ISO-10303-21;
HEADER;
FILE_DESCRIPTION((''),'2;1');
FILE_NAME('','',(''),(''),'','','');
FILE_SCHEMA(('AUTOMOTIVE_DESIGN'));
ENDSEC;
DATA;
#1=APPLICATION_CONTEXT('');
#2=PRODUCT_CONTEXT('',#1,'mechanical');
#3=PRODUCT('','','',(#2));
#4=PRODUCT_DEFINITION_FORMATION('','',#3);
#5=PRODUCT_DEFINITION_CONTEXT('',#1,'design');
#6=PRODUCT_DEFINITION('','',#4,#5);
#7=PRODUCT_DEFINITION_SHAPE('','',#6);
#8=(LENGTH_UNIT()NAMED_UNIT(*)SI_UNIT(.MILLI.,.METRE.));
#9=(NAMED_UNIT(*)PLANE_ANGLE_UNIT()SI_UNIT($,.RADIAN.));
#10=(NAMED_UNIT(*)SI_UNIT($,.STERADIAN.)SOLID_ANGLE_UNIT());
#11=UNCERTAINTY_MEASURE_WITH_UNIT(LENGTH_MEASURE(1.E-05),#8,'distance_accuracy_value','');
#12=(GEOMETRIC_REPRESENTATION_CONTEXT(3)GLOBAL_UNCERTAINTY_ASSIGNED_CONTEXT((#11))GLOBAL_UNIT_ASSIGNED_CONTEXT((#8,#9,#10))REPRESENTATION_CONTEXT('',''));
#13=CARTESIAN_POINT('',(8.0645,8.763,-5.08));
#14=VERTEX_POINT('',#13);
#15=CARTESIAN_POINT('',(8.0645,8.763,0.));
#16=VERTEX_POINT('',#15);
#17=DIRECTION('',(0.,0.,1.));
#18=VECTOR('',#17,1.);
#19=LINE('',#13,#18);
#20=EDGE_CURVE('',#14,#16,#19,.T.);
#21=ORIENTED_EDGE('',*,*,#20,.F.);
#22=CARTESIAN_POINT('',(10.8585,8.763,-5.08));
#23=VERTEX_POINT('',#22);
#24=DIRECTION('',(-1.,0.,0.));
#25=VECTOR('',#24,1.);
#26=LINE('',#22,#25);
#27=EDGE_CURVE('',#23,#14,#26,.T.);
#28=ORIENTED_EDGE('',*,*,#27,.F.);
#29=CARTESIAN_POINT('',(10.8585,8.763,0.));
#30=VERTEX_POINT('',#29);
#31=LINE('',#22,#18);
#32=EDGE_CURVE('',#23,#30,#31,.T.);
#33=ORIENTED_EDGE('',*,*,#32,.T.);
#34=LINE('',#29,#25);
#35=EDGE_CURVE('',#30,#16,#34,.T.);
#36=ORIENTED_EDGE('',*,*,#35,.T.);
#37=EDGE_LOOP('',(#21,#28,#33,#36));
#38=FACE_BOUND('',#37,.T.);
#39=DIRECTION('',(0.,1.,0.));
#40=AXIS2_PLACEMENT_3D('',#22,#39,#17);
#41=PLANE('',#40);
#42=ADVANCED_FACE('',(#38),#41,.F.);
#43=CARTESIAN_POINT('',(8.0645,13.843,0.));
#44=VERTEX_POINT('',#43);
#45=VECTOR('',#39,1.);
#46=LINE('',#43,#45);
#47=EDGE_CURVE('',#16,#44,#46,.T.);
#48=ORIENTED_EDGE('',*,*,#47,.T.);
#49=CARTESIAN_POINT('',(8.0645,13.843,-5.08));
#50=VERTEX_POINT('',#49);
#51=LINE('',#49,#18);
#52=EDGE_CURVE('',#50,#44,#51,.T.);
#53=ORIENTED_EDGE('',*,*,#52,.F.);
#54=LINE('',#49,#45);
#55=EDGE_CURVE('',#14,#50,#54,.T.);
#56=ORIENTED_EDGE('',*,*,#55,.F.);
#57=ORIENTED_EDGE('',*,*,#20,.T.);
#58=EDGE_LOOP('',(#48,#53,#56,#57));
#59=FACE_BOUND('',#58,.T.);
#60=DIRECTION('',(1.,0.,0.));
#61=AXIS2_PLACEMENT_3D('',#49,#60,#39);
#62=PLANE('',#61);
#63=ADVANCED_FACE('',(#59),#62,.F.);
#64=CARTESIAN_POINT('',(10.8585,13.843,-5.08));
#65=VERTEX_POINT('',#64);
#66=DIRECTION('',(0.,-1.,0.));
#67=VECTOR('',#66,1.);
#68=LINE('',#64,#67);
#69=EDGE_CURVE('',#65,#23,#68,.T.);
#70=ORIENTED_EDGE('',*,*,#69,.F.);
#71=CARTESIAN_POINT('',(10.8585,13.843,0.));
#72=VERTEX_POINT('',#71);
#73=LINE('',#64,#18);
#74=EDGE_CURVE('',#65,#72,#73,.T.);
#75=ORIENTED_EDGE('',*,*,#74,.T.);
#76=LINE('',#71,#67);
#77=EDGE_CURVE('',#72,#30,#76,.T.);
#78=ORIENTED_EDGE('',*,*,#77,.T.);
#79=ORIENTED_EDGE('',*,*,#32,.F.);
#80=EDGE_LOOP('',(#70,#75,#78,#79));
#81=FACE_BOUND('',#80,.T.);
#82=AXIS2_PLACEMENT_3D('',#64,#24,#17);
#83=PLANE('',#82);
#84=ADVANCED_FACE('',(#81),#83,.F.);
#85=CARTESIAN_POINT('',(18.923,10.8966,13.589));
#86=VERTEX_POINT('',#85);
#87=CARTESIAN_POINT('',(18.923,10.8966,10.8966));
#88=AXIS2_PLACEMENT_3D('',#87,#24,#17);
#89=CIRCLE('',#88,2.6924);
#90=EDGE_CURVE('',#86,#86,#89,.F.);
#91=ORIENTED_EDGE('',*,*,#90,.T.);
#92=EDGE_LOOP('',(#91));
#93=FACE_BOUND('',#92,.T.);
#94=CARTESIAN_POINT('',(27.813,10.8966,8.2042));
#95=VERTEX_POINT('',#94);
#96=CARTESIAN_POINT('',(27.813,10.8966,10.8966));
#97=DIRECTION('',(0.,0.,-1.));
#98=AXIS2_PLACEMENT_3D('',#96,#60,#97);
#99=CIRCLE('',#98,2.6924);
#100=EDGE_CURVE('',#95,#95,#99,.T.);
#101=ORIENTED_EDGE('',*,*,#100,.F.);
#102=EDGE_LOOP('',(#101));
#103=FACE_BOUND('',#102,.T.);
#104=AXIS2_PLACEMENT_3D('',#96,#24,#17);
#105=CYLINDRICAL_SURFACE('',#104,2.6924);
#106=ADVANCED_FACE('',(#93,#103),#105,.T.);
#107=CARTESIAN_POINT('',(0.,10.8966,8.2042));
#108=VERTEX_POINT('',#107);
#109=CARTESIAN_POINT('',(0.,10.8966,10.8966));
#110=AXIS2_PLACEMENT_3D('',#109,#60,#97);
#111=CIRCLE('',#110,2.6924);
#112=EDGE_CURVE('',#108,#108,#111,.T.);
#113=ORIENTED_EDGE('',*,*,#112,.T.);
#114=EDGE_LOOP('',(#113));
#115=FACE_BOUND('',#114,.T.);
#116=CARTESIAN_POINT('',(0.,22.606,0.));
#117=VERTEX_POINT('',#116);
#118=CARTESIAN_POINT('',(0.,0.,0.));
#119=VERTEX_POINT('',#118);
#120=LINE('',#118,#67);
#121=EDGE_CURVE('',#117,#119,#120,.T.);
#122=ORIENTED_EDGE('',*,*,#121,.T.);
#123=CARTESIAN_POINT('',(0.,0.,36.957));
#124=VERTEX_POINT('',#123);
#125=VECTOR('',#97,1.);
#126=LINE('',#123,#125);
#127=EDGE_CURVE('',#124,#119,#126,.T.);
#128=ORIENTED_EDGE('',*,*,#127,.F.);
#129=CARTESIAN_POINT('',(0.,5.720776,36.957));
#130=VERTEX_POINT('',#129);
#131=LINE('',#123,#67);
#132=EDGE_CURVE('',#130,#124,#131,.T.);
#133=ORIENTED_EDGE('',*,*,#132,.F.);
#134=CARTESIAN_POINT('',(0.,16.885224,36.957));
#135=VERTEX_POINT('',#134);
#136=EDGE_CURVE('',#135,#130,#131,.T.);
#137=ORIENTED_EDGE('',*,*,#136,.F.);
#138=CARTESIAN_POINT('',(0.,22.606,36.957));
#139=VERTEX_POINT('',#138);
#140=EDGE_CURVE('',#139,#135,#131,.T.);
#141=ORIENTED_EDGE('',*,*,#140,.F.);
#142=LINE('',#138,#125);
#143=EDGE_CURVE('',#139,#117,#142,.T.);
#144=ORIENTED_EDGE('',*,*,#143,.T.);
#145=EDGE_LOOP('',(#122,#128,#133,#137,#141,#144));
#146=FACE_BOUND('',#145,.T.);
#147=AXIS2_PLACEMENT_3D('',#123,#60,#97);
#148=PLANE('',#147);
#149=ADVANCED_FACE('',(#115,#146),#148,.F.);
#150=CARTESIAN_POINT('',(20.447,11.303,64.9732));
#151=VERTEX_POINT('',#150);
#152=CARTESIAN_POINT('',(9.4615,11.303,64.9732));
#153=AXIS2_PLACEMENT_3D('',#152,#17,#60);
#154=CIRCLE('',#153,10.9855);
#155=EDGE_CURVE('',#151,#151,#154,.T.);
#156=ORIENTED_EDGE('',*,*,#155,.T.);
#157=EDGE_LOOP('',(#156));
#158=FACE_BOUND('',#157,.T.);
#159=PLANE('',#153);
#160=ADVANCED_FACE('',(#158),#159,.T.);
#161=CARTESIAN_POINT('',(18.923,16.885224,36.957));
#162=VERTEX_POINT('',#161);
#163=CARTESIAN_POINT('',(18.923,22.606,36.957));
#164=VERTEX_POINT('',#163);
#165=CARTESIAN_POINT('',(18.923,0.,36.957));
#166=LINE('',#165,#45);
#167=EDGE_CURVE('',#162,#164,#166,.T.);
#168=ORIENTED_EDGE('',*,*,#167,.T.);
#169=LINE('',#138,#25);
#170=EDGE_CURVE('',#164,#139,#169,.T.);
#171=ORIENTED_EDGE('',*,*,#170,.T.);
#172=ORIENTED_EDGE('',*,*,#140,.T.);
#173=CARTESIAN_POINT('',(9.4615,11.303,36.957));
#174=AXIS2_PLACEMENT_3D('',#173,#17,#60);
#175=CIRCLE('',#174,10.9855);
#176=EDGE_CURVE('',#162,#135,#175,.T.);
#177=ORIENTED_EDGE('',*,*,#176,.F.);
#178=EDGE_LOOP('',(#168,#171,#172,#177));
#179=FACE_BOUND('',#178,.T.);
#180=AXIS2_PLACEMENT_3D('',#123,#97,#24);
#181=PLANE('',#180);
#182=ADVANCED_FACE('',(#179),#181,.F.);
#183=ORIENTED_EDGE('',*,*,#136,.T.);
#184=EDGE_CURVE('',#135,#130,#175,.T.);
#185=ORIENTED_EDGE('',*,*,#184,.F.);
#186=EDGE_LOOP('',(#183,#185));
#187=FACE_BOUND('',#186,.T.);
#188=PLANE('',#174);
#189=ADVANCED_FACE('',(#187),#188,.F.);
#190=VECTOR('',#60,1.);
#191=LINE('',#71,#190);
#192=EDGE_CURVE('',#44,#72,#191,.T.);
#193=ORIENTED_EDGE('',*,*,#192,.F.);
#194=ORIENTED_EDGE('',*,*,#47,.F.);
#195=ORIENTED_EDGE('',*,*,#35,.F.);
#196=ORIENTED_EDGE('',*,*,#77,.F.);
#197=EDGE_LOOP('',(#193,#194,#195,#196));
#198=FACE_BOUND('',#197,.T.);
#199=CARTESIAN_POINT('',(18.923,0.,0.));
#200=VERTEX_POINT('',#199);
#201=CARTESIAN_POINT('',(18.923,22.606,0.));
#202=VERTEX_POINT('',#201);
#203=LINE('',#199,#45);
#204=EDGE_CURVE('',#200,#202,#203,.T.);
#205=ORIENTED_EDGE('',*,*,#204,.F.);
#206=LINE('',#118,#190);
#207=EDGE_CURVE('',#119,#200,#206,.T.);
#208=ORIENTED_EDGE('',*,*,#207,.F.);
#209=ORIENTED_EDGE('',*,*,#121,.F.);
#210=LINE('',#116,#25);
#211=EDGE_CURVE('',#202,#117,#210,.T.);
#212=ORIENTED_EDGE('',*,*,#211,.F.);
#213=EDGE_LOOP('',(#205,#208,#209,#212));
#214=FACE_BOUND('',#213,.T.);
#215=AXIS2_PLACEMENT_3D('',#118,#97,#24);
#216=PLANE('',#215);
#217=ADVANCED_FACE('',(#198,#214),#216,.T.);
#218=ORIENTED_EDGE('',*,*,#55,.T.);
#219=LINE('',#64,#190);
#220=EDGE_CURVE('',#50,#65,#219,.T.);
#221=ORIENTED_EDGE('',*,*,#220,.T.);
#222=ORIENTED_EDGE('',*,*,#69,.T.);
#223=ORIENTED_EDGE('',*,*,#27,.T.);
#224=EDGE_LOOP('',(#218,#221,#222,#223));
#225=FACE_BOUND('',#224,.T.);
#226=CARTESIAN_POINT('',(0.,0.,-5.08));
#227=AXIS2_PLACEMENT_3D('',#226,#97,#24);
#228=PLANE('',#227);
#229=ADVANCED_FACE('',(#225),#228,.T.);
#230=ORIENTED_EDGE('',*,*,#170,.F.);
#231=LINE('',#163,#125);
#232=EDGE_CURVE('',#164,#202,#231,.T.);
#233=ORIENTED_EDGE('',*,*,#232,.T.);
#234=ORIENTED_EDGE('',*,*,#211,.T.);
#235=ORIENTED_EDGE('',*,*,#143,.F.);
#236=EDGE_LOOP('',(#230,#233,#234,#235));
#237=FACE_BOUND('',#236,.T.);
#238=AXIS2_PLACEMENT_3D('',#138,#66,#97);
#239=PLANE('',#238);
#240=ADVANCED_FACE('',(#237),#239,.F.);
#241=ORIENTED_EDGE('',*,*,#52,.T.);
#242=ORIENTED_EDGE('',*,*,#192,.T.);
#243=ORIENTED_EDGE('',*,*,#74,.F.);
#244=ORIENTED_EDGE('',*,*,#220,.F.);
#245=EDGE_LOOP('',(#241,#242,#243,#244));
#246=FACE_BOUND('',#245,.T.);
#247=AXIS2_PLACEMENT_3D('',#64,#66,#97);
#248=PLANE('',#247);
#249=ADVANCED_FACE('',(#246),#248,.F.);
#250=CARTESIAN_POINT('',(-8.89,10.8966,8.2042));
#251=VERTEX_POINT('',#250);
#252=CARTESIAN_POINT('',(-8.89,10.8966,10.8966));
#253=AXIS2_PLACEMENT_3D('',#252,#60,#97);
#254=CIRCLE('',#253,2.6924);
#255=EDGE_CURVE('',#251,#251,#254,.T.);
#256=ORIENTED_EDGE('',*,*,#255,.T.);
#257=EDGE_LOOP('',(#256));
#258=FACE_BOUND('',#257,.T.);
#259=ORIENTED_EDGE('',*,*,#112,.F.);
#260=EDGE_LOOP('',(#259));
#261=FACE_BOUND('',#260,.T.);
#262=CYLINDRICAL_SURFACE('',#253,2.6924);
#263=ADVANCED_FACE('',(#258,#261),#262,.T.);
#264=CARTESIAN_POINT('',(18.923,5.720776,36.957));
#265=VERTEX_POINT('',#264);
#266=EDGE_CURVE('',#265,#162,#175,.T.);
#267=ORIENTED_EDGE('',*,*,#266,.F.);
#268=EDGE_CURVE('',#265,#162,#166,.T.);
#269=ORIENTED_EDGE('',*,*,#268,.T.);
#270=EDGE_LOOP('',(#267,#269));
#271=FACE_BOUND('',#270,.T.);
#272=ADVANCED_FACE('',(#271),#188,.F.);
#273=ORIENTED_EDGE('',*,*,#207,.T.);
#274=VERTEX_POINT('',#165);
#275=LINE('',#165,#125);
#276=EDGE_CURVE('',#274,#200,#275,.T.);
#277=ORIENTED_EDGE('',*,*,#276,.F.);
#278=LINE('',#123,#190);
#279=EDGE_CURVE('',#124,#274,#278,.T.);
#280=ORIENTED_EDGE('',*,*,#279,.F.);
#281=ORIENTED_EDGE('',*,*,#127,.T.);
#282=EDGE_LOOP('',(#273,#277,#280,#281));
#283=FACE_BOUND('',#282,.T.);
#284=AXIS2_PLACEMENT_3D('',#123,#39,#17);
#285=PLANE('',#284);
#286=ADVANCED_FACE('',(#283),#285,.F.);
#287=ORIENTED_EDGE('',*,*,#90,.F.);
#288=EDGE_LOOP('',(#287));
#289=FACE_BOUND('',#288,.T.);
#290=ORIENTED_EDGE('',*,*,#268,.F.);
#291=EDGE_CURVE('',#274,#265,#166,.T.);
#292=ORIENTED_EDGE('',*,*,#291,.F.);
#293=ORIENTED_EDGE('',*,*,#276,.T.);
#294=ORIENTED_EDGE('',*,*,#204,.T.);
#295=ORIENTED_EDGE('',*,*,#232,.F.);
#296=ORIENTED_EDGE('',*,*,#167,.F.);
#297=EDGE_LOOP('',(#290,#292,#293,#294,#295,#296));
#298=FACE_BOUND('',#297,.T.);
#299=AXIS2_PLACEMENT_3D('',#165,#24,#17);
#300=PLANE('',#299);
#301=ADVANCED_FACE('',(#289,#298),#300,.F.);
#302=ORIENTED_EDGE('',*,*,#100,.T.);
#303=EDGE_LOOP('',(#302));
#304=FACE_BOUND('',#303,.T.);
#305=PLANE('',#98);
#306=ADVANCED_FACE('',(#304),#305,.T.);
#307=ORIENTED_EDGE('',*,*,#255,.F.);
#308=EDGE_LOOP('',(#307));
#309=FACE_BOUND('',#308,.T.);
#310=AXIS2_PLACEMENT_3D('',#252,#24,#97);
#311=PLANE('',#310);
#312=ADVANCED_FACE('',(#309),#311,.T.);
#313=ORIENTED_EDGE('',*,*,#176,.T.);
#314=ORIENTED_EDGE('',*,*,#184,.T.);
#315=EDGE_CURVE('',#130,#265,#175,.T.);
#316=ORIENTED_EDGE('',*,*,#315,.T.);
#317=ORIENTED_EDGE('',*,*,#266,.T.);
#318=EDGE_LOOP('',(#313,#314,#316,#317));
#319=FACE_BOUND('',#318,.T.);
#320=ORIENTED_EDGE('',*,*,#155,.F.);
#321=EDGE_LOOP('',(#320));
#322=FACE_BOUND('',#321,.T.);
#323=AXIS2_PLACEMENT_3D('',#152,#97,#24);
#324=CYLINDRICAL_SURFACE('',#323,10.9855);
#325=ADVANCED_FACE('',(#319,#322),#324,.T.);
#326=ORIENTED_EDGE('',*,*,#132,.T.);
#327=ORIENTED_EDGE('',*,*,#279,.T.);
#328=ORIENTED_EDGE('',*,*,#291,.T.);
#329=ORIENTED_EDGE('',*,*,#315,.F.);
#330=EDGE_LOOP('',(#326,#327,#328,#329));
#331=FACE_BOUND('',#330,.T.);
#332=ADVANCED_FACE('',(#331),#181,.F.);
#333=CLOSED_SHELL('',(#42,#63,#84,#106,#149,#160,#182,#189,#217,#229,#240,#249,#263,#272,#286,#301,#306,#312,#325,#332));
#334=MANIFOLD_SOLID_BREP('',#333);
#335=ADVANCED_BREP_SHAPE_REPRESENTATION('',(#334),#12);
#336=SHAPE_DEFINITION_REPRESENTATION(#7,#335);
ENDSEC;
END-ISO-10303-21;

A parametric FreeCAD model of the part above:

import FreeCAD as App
import Part
import Sketcher
from FreeCAD import Vector
Q = App.Units.Quantity


def add_polygon(sketch, points):
    """Adds a closed chain of lines whose ends are joined by coincident constraints."""
    first, n = sketch.GeometryCount, len(points)
    for a, b in zip(points, points[1:] + points[:1]):
        sketch.addGeometry(Part.LineSegment(App.Vector(*a, 0), App.Vector(*b, 0)), False)
    for i in range(n):
        sketch.addConstraint(Sketcher.Constraint("Coincident", first + i, 2, first + (i + 1) % n, 1))

doc = App.newDocument("Part")
params = doc.addObject("Spreadsheet::Sheet", "Params")
for row, (alias, value) in enumerate([
    ("sketch1_height", "0.89 in"),
    ("sketch1_width", "0.745 in"),
    ("pad1_length", "1.455 in"),
    ("sketch2_diameter", "0.865 in"),
    ("pad2_length", "1.103 in"),
    ("sketch3_height", "0.2 in"),
    ("sketch3_width", "0.11 in"),
    ("pad3_length", "0.2 in"),
    ("sketch4_diameter", "0.212 in"),
    ("pad4_length", "0.35 in"),
], start=1):
    params.set(f"A{row}", alias)
    params.set(f"B{row}", "=" + value)
    params.setAlias(f"B{row}", alias)

body = doc.addObject("PartDesign::Body", "Body")

# Sketch on XY plane
sketch1 = doc.addObject("Sketcher::SketchObject", "Sketch")
body.addObject(sketch1)
sketch1.AttachmentSupport = (doc.XY_Plane, [""])
sketch1.MapMode = "FlatFace"
add_polygon(sketch1, [(0, 23), (0, 0), (19, 0), (19, 23)])  # lines 0-3
sketch1.addConstraint(Sketcher.Constraint("Vertical", 0))
sketch1.addConstraint(Sketcher.Constraint("Horizontal", 1))
sketch1.addConstraint(Sketcher.Constraint("Vertical", 2))
sketch1.addConstraint(Sketcher.Constraint("Horizontal", 3))
sketch1.addConstraint(Sketcher.Constraint("Coincident", 0, 2, -1, 1))
sketch1.addConstraint(Sketcher.Constraint("DistanceY", 0, 2, 0, 1, Q("0.89 in")))
sketch1.addConstraint(Sketcher.Constraint("DistanceX", 1, 1, 1, 2, Q("0.745 in")))
sketch1.setExpression("Constraints[9]", "Params.sketch1_height")
sketch1.setExpression("Constraints[10]", "Params.sketch1_width")
pad1 = doc.addObject("PartDesign::Pad", "Pad")
body.addObject(pad1)
pad1.Profile = sketch1
pad1.setExpression("Length", "Params.pad1_length")

# Sketch on XY plane
sketch2 = doc.addObject("Sketcher::SketchObject", "Sketch001")
body.addObject(sketch2)
sketch2.AttachmentSupport = (doc.XY_Plane, [""])
sketch2.MapMode = "FlatFace"
sketch2.AttachmentOffset = App.Placement(Vector(0, 0, 1.455 * 25.4), App.Rotation())
sketch2.addGeometry(Part.Circle(Vector(9, 11, 0), Vector(0, 0, 1), 11), False)
sketch2.addConstraint(Sketcher.Constraint("Diameter", 0, Q("0.865 in")))
sketch2.addConstraint(Sketcher.Constraint("DistanceY", -1, 1, 0, 3, Q("0.445 in")))
sketch2.addConstraint(Sketcher.Constraint("DistanceX", -1, 1, 0, 3, Q("0.3725 in")))
sketch2.setExpression("Constraints[0]", "Params.sketch2_diameter")
pad2 = doc.addObject("PartDesign::Pad", "Pad001")
body.addObject(pad2)
pad2.Profile = sketch2
pad2.setExpression("Length", "Params.pad2_length")

# Sketch on XY plane
sketch3 = doc.addObject("Sketcher::SketchObject", "Sketch002")
body.addObject(sketch3)
sketch3.AttachmentSupport = (doc.XY_Plane, [""])
sketch3.MapMode = "FlatFace"
add_polygon(sketch3, [(10.9, 13.8), (10.9, 8.8), (8.1, 8.8), (8.1, 13.8)])  # lines 0-3
sketch3.addConstraint(Sketcher.Constraint("Vertical", 0))
sketch3.addConstraint(Sketcher.Constraint("Horizontal", 1))
sketch3.addConstraint(Sketcher.Constraint("Vertical", 2))
sketch3.addConstraint(Sketcher.Constraint("Horizontal", 3))
sketch3.addConstraint(Sketcher.Constraint("DistanceY", 0, 2, 0, 1, Q("0.2 in")))
sketch3.addConstraint(Sketcher.Constraint("DistanceX", 1, 2, 1, 1, Q("0.11 in")))
sketch3.addConstraint(Sketcher.Constraint("DistanceY", -1, 1, 0, 2, Q("0.345 in")))
sketch3.addConstraint(Sketcher.Constraint("DistanceX", -1, 1, 0, 2, Q("0.4275 in")))
sketch3.setExpression("Constraints[8]", "Params.sketch3_height")
sketch3.setExpression("Constraints[9]", "Params.sketch3_width")
pad3 = doc.addObject("PartDesign::Pad", "Pad002")
body.addObject(pad3)
pad3.Profile = sketch3
pad3.setExpression("Length", "Params.pad3_length")
pad3.Reversed = True

# Sketch on YZ plane
sketch4 = doc.addObject("Sketcher::SketchObject", "Sketch003")
body.addObject(sketch4)
sketch4.AttachmentSupport = (doc.YZ_Plane, [""])
sketch4.MapMode = "FlatFace"
sketch4.AttachmentOffset = App.Placement(Vector(0, 0, 0.745 * 25.4), App.Rotation())
sketch4.addGeometry(Part.Circle(Vector(10.9, 10.9, 0), Vector(0, 0, 1), 2.7), False)
sketch4.addConstraint(Sketcher.Constraint("Diameter", 0, Q("0.212 in")))
sketch4.addConstraint(Sketcher.Constraint("DistanceX", -1, 1, 0, 3, Q("0.429 in")))
sketch4.addConstraint(Sketcher.Constraint("DistanceY", -1, 1, 0, 3, Q("0.429 in")))
sketch4.setExpression("Constraints[0]", "Params.sketch4_diameter")
pad4 = doc.addObject("PartDesign::Pad", "Pad003")
body.addObject(pad4)
pad4.Profile = sketch4
pad4.setExpression("Length", "Params.pad4_length")
doc.recompute()

datumplane = doc.addObject("PartDesign::Plane", "DatumPlane")
body.addObject(datumplane)
datumplane.AttachmentSupport = (doc.YZ_Plane, [""])
datumplane.MapMode = "FlatFace"
datumplane.AttachmentOffset = App.Placement(Vector(0, 0, 0.3725 * 25.4), App.Rotation())
mirrored = doc.addObject("PartDesign::Mirrored", "Mirrored")
body.addObject(mirrored)
mirrored.Originals = [pad4]
mirrored.MirrorPlane = (datumplane, [""])
body.Tip = mirrored

doc.recompute()
